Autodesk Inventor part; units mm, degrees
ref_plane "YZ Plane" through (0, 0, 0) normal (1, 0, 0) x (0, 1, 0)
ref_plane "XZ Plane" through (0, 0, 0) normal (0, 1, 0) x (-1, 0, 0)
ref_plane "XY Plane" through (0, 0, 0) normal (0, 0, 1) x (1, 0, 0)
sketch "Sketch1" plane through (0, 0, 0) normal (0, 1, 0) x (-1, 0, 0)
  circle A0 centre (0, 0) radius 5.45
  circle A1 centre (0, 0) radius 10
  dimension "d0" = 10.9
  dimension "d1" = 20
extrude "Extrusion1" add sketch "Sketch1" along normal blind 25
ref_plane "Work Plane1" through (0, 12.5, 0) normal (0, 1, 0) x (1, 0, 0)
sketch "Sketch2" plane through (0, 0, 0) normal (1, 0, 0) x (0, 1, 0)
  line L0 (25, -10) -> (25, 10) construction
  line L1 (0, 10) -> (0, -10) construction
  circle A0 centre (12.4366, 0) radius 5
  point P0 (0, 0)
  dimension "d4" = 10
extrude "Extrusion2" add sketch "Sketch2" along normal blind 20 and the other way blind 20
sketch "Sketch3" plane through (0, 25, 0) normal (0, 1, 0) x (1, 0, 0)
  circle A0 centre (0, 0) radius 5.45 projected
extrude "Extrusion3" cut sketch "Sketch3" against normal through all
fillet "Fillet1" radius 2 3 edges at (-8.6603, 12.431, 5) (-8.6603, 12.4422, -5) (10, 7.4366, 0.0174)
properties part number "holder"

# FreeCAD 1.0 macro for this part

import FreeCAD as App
import Part
import Sketcher
from FreeCAD import Vector


def edges_at(feature, points):
    """Names of the edges that pass closest to the given points."""
    edges = feature.Shape.Edges
    near = lambda p: min(range(len(edges)), key=lambda i: edges[i].distToShape(Part.Vertex(*p))[0])
    return sorted({f"Edge{near(p) + 1}" for p in points})

doc = App.newDocument("Part")
body = doc.addObject("PartDesign::Body", "Body")

sketch1 = body.newObject("Sketcher::SketchObject", "Sketch")
sketch1.AttachmentSupport = (doc.getObject("XZ_Plane"), [""])
sketch1.MapMode = "FlatFace"
sketch1.addGeometry([
    Part.Circle(Vector(0, 0, 0), Vector(0, 0, 1), 10),
    Part.Circle(Vector(0, 0, 0), Vector(0, 0, 1), 5),
], False)
sketch1.addConstraint([
    Sketcher.Constraint("Coincident", 0, 3, -1, 1),
    Sketcher.Constraint("Coincident", 1, 3, -1, 1),
    Sketcher.Constraint("Diameter", 0, 20.0),
    Sketcher.Constraint("Diameter", 1, 10.9),
])
pad1 = body.newObject("PartDesign::Pad", "Pad")
pad1.Profile = sketch1
pad1.Length = 25
pad1.Reversed = True

sketch2 = body.newObject("Sketcher::SketchObject", "Sketch001")
sketch2.AttachmentSupport = (doc.getObject("YZ_Plane"), [""])
sketch2.MapMode = "FlatFace"
sketch2.addGeometry(Part.Circle(Vector(12, 0, 0), Vector(0, 0, 1), 5), False)
sketch2.addConstraint([
    Sketcher.Constraint("PointOnObject", 0, 3, -1),
    Sketcher.Constraint("Diameter", 0, 10.0),
    Sketcher.Constraint("DistanceX", -1, 1, 0, 3, 12.4366),
])
pad2 = body.newObject("PartDesign::Pad", "Pad001")
pad2.Profile = sketch2
pad2.Type = "TwoLengths"
pad2.Length = 20
pad2.Length2 = 20

sketch3 = body.newObject("Sketcher::SketchObject", "Sketch002")
sketch3.AttachmentSupport = (doc.getObject("XZ_Plane"), [""])
sketch3.MapMode = "FlatFace"
sketch3.AttachmentOffset = App.Placement(Vector(0, 0, -25), App.Rotation())
sketch3.addGeometry(Part.Circle(Vector(0, 0, 0), Vector(0, 0, 1), 5), False)
sketch3.addConstraint([
    Sketcher.Constraint("Coincident", 0, 3, -1, 1),
    Sketcher.Constraint("Diameter", 0, 10.9),
])
pocket1 = body.newObject("PartDesign::Pocket", "Pocket")
pocket1.Profile = sketch3
pocket1.Type = "ThroughAll"
pocket1.Reversed = True
doc.recompute()

fillet = body.newObject("PartDesign::Fillet", "Fillet")
fillet.Base = (pocket1, edges_at(pocket1, [(-8.66, 12.431, 5), (-8.66, 12.442, -5), (10, 7.437, 0.017)]))
fillet.Radius = 2

doc.recompute()
